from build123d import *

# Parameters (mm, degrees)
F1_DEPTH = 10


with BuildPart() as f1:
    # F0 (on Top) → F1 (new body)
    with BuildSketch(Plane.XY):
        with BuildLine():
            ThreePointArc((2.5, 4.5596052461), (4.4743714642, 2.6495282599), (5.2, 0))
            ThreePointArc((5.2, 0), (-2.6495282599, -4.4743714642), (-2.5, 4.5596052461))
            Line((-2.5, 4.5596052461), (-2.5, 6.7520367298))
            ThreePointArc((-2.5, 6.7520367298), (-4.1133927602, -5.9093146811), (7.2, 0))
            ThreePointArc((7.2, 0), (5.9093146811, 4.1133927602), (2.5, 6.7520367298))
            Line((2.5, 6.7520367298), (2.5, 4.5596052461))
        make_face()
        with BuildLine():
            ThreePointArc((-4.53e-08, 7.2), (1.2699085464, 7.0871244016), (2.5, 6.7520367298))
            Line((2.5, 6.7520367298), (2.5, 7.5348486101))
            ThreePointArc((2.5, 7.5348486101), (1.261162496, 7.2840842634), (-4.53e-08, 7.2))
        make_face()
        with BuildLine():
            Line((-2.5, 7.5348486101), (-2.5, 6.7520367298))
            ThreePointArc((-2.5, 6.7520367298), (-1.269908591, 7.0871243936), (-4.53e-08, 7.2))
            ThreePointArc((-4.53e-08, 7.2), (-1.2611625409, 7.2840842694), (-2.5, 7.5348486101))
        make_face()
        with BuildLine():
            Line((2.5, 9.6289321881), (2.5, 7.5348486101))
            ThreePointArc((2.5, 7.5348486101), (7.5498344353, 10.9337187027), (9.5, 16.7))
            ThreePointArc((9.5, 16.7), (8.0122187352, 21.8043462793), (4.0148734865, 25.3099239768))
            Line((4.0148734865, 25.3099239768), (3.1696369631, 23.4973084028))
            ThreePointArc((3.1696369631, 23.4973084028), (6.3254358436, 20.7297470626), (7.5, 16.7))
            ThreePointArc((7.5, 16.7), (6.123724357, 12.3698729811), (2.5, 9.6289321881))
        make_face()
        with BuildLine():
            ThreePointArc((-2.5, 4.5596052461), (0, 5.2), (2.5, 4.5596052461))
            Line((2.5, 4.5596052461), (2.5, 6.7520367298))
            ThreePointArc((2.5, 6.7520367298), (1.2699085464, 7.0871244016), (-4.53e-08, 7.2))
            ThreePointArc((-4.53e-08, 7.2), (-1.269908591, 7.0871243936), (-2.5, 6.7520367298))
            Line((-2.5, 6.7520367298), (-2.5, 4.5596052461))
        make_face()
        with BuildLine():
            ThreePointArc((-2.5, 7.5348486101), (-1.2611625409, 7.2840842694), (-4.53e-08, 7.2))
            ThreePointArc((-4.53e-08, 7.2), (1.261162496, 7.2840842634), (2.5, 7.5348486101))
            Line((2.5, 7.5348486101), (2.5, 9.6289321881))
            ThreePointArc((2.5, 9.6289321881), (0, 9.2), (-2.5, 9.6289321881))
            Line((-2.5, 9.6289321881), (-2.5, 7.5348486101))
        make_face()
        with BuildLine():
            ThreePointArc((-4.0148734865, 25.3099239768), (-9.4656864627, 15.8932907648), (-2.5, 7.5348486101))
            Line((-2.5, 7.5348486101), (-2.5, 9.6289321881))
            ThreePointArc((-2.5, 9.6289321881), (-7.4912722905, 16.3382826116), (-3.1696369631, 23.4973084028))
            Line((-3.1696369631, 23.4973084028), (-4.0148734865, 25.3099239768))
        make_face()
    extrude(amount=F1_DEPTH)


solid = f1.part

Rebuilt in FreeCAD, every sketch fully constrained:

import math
import FreeCAD as App
import Part
import Sketcher
Q = App.Units.Quantity

doc = App.newDocument("Part")
params = doc.addObject("Spreadsheet::Sheet", "Params")
for row, (alias, value) in enumerate([
    ("sketch1_radius", "7.2 mm"),
    ("sketch1_radius2", "9.5 mm"),
    ("sketch1_radius3", "7.5 mm"),
    ("sketch1_radius4", "5.2 mm"),
    ("pad1_length", "10 mm"),
], start=1):
    params.set(f"A{row}", alias)
    params.set(f"B{row}", "=" + value)
    params.setAlias(f"B{row}", alias)

body = doc.addObject("PartDesign::Body", "Body")

# Sketch on XY plane
sketch1 = doc.addObject("Sketcher::SketchObject", "Sketch")
body.addObject(sketch1)
sketch1.AttachmentSupport = (doc.XY_Plane, [""])
sketch1.MapMode = "FlatFace"
sketch1.addGeometry(Part.ArcOfCircle(Part.Circle(App.Vector(0, 0, 0), App.Vector(0, 0, 1), 7.2), math.radians(110.317508), math.radians(360)), False)
sketch1.addGeometry(Part.ArcOfCircle(Part.Circle(App.Vector(0, 0, 0), App.Vector(0, 0, 1), 7.2), math.radians(0), math.radians(69.682492)), False)
sketch1.addGeometry(Part.LineSegment(App.Vector(2.5, 6.752037, 0), App.Vector(2.5, 7.534849, 0)), False)
sketch1.addGeometry(Part.ArcOfCircle(Part.Circle(App.Vector(0, 16.7, 0), App.Vector(0, 0, 1), 9.5), math.radians(-74.742477), math.radians(0)), False)
sketch1.addGeometry(Part.ArcOfCircle(Part.Circle(App.Vector(0, 16.7, 0), App.Vector(0, 0, 1), 9.5), math.radians(0), math.radians(65)), False)
sketch1.addGeometry(Part.LineSegment(App.Vector(4.014873, 25.309924, 0), App.Vector(3.169637, 23.497308, 0)), False)
sketch1.addGeometry(Part.ArcOfCircle(Part.Circle(App.Vector(0, 16.7, 0), App.Vector(0, 0, 1), 7.5), math.radians(0), math.radians(65)), False)
sketch1.addGeometry(Part.ArcOfCircle(Part.Circle(App.Vector(0, 16.7, 0), App.Vector(0, 0, 1), 7.5), math.radians(-70.528779), math.radians(0)), False)
sketch1.addGeometry(Part.ArcOfCircle(Part.Circle(App.Vector(0, 16.7, 0), App.Vector(0, 0, 1), 7.5), math.radians(-109.471221), math.radians(-70.528779)), False)
sketch1.addGeometry(Part.ArcOfCircle(Part.Circle(App.Vector(0, 16.7, 0), App.Vector(0, 0, 1), 7.5), math.radians(115), math.radians(250.528779)), False)
sketch1.addGeometry(Part.LineSegment(App.Vector(-3.169637, 23.497308, 0), App.Vector(-4.014873, 25.309924, 0)), False)
sketch1.addGeometry(Part.ArcOfCircle(Part.Circle(App.Vector(0, 16.7, 0), App.Vector(0, 0, 1), 9.5), math.radians(115), math.radians(254.742477)), False)
sketch1.addGeometry(Part.LineSegment(App.Vector(-2.5, 7.534849, 0), App.Vector(-2.5, 6.752037, 0)), False)
sketch1.addGeometry(Part.ArcOfCircle(Part.Circle(App.Vector(0, 0, 0), App.Vector(0, 0, 1), 5.2), math.radians(0), math.radians(61.264346)), False)
sketch1.addGeometry(Part.ArcOfCircle(Part.Circle(App.Vector(0, 0, 0), App.Vector(0, 0, 1), 5.2), math.radians(118.735654), math.radians(360)), False)
sketch1.addGeometry(Part.ArcOfCircle(Part.Circle(App.Vector(0, 0, 0), App.Vector(0, 0, 1), 5.2), math.radians(61.264346), math.radians(118.735654)), False)
sketch1.addConstraint(Sketcher.Constraint("Tangent", 0, 2, 1, 1))
sketch1.addConstraint(Sketcher.Constraint("Coincident", 1, 2, 2, 1))
sketch1.addConstraint(Sketcher.Constraint("Coincident", 2, 2, 3, 1))
sketch1.addConstraint(Sketcher.Constraint("Tangent", 3, 2, 4, 1))
sketch1.addConstraint(Sketcher.Constraint("Coincident", 4, 2, 5, 1))
sketch1.addConstraint(Sketcher.Constraint("Coincident", 5, 2, 6, 2))
sketch1.addConstraint(Sketcher.Constraint("Tangent", 6, 1, 7, 2))
sketch1.addConstraint(Sketcher.Constraint("Tangent", 7, 1, 8, 2))
sketch1.addConstraint(Sketcher.Constraint("Tangent", 8, 1, 9, 2))
sketch1.addConstraint(Sketcher.Constraint("Coincident", 9, 1, 10, 1))
sketch1.addConstraint(Sketcher.Constraint("Coincident", 10, 2, 11, 1))
sketch1.addConstraint(Sketcher.Constraint("Coincident", 11, 2, 12, 1))
sketch1.addConstraint(Sketcher.Constraint("Coincident", 12, 2, 0, 1))
sketch1.addConstraint(Sketcher.Constraint("Tangent", 13, 1, 14, 2))
sketch1.addConstraint(Sketcher.Constraint("Tangent", 14, 1, 15, 2))
sketch1.addConstraint(Sketcher.Constraint("Tangent", 15, 1, 13, 2))
sketch1.addConstraint(Sketcher.Constraint("Vertical", 2))
sketch1.addConstraint(Sketcher.Constraint("Vertical", 12))
sketch1.addConstraint(Sketcher.Constraint("Coincident", 0, 3, -1, 1))
sketch1.addConstraint(Sketcher.Constraint("Coincident", 13, 3, -1, 1))
sketch1.addConstraint(Sketcher.Constraint("Coincident", 6, 3, 3, 3))
sketch1.addConstraint(Sketcher.Constraint("Coincident", 8, 3, 3, 3))
sketch1.addConstraint(Sketcher.Constraint("Coincident", 11, 3, 3, 3))
sketch1.addConstraint(Sketcher.Constraint("Equal", 0, 1))
sketch1.addConstraint(Sketcher.Constraint("Equal", 3, 4))
sketch1.addConstraint(Sketcher.Constraint("Equal", 8, 9))
sketch1.addConstraint(Sketcher.Constraint("Equal", 4, 11))
sketch1.addConstraint(Sketcher.Constraint("Symmetric", 7, 1, 8, 1, -2))
sketch1.addConstraint(Sketcher.Constraint("PointOnObject", 0, 2, -1))
sketch1.addConstraint(Sketcher.Constraint("PointOnObject", 13, 1, -1))
sketch1.addConstraint(Sketcher.Constraint("Horizontal", 11, 3, 3, 2))
sketch1.addConstraint(Sketcher.Constraint("Horizontal", 3, 2, 6, 1))
sketch1.addConstraint(Sketcher.Constraint("Horizontal", 5, 2, 9, 1))
sketch1.addConstraint(Sketcher.Constraint("Horizontal", 4, 2, 10, 2))
sketch1.addConstraint(Sketcher.Constraint("Horizontal", 2, 2, 11, 2))
sketch1.addConstraint(Sketcher.Constraint("Horizontal", 14, 1, 15, 1))
sketch1.addConstraint(Sketcher.Constraint("Vertical", 2, 2, 7, 1))
sketch1.addConstraint(Sketcher.Constraint("Vertical", 12, 2, 14, 1))
sketch1.addConstraint(Sketcher.Constraint("Radius", 0, Q("7.2 mm")))
sketch1.addConstraint(Sketcher.Constraint("Radius", 3, Q("9.5 mm")))
sketch1.addConstraint(Sketcher.Constraint("Radius", 6, Q("7.5 mm")))
sketch1.addConstraint(Sketcher.Constraint("Radius", 13, Q("5.2 mm")))
sketch1.addConstraint(Sketcher.Constraint("Angle", 5, Q("-115 deg")))
sketch1.addConstraint(Sketcher.Constraint("DistanceX", 8, 1, 7, 1, Q("5 mm")))
sketch1.addConstraint(Sketcher.Constraint("DistanceY", -1, 1, 3, 3, Q("16.7 mm")))
sketch1.addConstraint(Sketcher.Constraint("DistanceY", -1, 1, 5, 2, Q("23.497308 mm")))
sketch1.setExpression("Constraints[38]", "Params.sketch1_radius")
sketch1.setExpression("Constraints[39]", "Params.sketch1_radius2")
sketch1.setExpression("Constraints[40]", "Params.sketch1_radius3")
sketch1.setExpression("Constraints[41]", "Params.sketch1_radius4")
pad1 = doc.addObject("PartDesign::Pad", "Pad")
body.addObject(pad1)
pad1.Profile = sketch1
pad1.setExpression("Length", "Params.pad1_length")

doc.recompute()
